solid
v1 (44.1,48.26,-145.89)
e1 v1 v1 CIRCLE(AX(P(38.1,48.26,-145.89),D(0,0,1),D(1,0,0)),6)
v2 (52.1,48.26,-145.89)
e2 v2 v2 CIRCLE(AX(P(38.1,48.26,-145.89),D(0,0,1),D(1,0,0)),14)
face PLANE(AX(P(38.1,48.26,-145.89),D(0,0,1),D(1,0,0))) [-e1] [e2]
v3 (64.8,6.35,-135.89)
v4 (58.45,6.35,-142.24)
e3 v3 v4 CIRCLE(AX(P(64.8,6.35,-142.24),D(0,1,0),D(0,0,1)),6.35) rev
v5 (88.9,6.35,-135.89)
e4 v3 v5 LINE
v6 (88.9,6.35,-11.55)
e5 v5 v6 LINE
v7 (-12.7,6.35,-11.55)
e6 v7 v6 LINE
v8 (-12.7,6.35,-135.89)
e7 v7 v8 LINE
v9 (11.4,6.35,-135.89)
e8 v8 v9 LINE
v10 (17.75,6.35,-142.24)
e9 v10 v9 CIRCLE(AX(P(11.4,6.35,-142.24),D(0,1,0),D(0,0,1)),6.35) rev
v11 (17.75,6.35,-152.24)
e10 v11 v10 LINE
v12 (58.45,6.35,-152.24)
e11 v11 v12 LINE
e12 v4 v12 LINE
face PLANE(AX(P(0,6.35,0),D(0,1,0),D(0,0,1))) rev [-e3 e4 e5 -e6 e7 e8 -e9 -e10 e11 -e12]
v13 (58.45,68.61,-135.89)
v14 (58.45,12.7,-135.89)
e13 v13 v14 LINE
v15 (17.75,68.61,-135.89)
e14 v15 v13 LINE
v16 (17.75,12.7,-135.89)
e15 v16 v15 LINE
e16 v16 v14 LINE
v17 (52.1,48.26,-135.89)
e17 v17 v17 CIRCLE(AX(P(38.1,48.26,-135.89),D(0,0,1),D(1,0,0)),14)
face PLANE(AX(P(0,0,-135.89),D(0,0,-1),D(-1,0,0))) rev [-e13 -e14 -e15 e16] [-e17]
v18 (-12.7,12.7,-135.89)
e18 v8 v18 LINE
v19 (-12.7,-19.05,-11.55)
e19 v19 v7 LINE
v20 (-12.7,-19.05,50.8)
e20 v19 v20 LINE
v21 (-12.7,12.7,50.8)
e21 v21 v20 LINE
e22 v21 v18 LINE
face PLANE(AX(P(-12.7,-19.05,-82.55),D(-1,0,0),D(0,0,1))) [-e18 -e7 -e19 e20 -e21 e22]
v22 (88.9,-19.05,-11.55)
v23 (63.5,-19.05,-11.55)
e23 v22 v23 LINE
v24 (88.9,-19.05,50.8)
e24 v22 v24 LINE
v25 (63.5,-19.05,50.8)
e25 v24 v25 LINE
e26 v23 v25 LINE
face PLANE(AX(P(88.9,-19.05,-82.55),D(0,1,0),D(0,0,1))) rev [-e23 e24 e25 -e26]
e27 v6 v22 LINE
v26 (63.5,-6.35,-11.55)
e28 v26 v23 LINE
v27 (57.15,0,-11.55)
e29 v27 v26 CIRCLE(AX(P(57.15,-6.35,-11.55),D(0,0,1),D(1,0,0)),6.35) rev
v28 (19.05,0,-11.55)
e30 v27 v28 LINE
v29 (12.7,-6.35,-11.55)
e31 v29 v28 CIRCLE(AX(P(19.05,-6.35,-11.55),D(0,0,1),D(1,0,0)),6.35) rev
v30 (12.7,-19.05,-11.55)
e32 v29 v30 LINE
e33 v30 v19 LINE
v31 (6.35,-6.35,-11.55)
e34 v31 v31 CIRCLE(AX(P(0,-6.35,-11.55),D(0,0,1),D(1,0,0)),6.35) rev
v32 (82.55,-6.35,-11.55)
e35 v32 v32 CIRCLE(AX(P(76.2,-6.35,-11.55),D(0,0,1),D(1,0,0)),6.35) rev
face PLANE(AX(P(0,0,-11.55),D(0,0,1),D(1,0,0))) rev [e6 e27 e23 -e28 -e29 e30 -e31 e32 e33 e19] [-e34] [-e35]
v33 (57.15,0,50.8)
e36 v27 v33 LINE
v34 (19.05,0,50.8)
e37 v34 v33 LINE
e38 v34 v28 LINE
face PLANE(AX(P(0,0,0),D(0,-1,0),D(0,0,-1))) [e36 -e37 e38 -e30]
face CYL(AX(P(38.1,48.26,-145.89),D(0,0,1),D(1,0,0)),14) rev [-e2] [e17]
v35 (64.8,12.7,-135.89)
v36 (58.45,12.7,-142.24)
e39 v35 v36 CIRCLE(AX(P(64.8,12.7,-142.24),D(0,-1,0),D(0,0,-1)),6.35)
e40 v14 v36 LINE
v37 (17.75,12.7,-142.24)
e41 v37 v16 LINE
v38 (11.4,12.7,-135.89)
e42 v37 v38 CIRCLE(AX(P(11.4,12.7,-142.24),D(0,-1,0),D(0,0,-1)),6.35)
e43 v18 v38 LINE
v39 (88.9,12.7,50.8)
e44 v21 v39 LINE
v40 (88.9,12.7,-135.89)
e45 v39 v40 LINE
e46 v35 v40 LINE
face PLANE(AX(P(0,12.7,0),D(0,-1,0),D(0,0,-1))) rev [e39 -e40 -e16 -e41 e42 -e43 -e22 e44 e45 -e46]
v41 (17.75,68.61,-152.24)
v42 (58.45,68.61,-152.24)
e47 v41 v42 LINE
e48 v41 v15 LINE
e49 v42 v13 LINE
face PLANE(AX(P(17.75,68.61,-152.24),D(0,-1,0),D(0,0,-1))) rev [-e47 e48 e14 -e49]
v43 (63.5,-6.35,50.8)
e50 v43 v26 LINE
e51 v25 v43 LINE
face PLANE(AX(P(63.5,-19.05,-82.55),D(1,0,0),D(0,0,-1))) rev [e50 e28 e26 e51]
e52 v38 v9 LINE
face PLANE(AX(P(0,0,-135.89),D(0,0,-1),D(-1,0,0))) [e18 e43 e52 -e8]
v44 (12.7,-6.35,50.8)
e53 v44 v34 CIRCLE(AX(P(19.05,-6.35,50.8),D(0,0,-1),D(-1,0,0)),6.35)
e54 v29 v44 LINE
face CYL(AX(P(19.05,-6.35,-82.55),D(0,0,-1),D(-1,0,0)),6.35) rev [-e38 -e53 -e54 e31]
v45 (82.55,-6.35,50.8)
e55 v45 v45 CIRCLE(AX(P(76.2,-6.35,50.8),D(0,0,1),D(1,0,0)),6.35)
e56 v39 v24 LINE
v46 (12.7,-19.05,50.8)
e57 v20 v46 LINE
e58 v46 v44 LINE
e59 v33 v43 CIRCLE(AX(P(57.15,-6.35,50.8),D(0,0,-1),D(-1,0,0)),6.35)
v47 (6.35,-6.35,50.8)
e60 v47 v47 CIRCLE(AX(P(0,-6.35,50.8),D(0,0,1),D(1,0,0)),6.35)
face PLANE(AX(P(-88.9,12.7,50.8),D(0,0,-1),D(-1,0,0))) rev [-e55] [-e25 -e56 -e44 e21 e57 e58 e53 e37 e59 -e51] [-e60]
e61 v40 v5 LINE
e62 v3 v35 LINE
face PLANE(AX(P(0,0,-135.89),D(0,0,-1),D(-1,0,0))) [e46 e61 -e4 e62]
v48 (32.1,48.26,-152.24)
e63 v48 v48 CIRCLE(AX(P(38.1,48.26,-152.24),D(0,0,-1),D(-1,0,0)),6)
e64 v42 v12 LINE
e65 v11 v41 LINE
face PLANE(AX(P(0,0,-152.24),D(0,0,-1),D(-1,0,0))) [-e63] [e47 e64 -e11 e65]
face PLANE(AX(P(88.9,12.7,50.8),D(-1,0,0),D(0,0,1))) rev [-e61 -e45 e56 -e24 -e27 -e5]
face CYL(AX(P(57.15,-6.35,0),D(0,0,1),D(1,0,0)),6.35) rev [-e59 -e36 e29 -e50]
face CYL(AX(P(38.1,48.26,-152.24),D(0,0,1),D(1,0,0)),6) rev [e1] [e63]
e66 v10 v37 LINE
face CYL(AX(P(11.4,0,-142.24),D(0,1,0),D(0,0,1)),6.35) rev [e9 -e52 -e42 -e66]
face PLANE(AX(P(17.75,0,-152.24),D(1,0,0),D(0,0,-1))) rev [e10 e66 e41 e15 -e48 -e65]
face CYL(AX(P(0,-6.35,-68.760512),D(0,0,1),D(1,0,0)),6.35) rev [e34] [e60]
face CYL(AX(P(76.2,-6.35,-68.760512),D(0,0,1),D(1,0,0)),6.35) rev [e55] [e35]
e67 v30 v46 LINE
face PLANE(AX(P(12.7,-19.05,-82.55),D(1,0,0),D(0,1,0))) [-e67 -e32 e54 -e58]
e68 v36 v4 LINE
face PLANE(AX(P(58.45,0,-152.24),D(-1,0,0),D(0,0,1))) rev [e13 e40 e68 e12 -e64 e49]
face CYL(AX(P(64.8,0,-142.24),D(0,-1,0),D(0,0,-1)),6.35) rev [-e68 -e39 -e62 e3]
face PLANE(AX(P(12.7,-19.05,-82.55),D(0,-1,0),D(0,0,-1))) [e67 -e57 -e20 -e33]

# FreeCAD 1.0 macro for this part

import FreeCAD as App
import Part
import Sketcher
from FreeCAD import Vector
Q = App.Units.Quantity


def edges_at(feature, points):
    """Names of the edges that pass closest to the given points."""
    edges = feature.Shape.Edges
    near = lambda p: min(range(len(edges)), key=lambda i: edges[i].distToShape(Part.Vertex(*p))[0])
    return sorted({f"Edge{near(p) + 1}" for p in points})


def add_polygon(sketch, points):
    """Adds a closed chain of lines whose ends are joined by coincident constraints."""
    first, n = sketch.GeometryCount, len(points)
    for a, b in zip(points, points[1:] + points[:1]):
        sketch.addGeometry(Part.LineSegment(App.Vector(*a, 0), App.Vector(*b, 0)), False)
    for i in range(n):
        sketch.addConstraint(Sketcher.Constraint("Coincident", first + i, 2, first + (i + 1) % n, 1))

doc = App.newDocument("Part")
params = doc.addObject("Spreadsheet::Sheet", "Params")
for row, (alias, value) in enumerate([
    ("sketch1_width", "7 in"),
    ("sketch1_height", "4 in"),
    ("pad1_length", "0.5 in"),
    ("sketch2_width", "1 in"),
    ("sketch2_height", "0.75 in"),
    ("pad2_length", "4 in"),
    ("sketch3_diameter", "0.5 in"),
    ("pocket1_length", "4 in"),
    ("sketch4_width", "1 in"),
    ("sketch4_height", "0.75 in"),
    ("pad3_length", "4 in"),
    ("sketch5_diameter", "0.5 in"),
    ("pocket2_length", "4 in"),
    ("sketch6_width", "3 in"),
    ("sketch6_height", "1.25 in"),
    ("pocket3_length", "4 in"),
    ("fillet_radius", "0.25 in"),
    ("sketch7_width", "4 in"),
    ("sketch7_height", "0.5 in"),
    ("pad4_length", "3.35 in"),
    ("pad5_length", "16.35 mm"),
    ("pocket4_length", "10 mm"),
    ("fillet2_radius", "0.25 in"),
    ("pocket5_length", "0.25 in"),
    ("fillet3_radius", "0.125 in"),
    ("sketch11_width", "4 in"),
    ("sketch11_height", "1 in"),
    ("pocket6_length", "0.125 in"),
    ("pocket6_length2", "39.25 mm"),
], start=1):
    params.set(f"A{row}", alias)
    params.set(f"B{row}", "=" + value)
    params.setAlias(f"B{row}", alias)

body = doc.addObject("PartDesign::Body", "Body")

sketch1 = body.newObject("Sketcher::SketchObject", "Sketch")
sketch1.AttachmentSupport = (doc.getObject("XZ_Plane"), [""])
sketch1.MapMode = "FlatFace"
add_polygon(sketch1, [(-89, -51), (-89, 51), (89, 51), (89, -51)])
sketch1.addConstraint(Sketcher.Constraint("Vertical", 0))
sketch1.addConstraint(Sketcher.Constraint("Horizontal", 1))
sketch1.addConstraint(Sketcher.Constraint("Vertical", 2))
sketch1.addConstraint(Sketcher.Constraint("Horizontal", 3))
sketch1.addConstraint(Sketcher.Constraint("Symmetric", 0, 2, 2, 2, -1, 1))
sketch1.addConstraint(Sketcher.Constraint("DistanceX", 1, 1, 1, 2, Q("7 in")))
sketch1.addConstraint(Sketcher.Constraint("DistanceY", 0, 1, 0, 2, Q("4 in")))
sketch1.setExpression("Constraints[9]", "Params.sketch1_width")
sketch1.setExpression("Constraints[10]", "Params.sketch1_height")
pad1 = body.newObject("PartDesign::Pad", "Pad")
pad1.Profile = sketch1
pad1.setExpression("Length", "Params.pad1_length")
pad1.Reversed = True

sketch2 = body.newObject("Sketcher::SketchObject", "Sketch001")
sketch2.AttachmentSupport = (doc.getObject("XY_Plane"), [""])
sketch2.MapMode = "FlatFace"
sketch2.AttachmentOffset = App.Placement(Vector(0, 0, 2 * 25.4), App.Rotation())
add_polygon(sketch2, [(-13, 0), (-13, -19), (13, -19), (13, 0)])
sketch2.addConstraint(Sketcher.Constraint("Vertical", 0))
sketch2.addConstraint(Sketcher.Constraint("Horizontal", 1))
sketch2.addConstraint(Sketcher.Constraint("Vertical", 2))
sketch2.addConstraint(Sketcher.Constraint("Horizontal", 3))
sketch2.addConstraint(Sketcher.Constraint("Symmetric", 2, 2, 3, 2, -1, 1))
sketch2.addConstraint(Sketcher.Constraint("DistanceX", 1, 1, 1, 2, Q("1 in")))
sketch2.addConstraint(Sketcher.Constraint("DistanceY", 0, 2, 0, 1, Q("0.75 in")))
sketch2.setExpression("Constraints[9]", "Params.sketch2_width")
sketch2.setExpression("Constraints[10]", "Params.sketch2_height")
pad2 = body.newObject("PartDesign::Pad", "Pad001")
pad2.Profile = sketch2
pad2.setExpression("Length", "Params.pad2_length")
pad2.Reversed = True

sketch3 = body.newObject("Sketcher::SketchObject", "Sketch002")
sketch3.AttachmentSupport = (doc.getObject("XY_Plane"), [""])
sketch3.MapMode = "FlatFace"
sketch3.AttachmentOffset = App.Placement(Vector(0, 0, 2 * 25.4), App.Rotation())
sketch3.addGeometry(Part.Circle(Vector(0, -6, 0), Vector(0, 0, 1), 6), False)
sketch3.addConstraint(Sketcher.Constraint("PointOnObject", 0, 3, -2))
sketch3.addConstraint(Sketcher.Constraint("Diameter", 0, Q("0.5 in")))
sketch3.addConstraint(Sketcher.Constraint("DistanceY", 0, 3, -1, 1, Q("0.25 in")))
sketch3.setExpression("Constraints[1]", "Params.sketch3_diameter")
pocket1 = body.newObject("PartDesign::Pocket", "Pocket")
pocket1.Profile = sketch3
pocket1.setExpression("Length", "Params.pocket1_length")

sketch4 = body.newObject("Sketcher::SketchObject", "Sketch003")
sketch4.AttachmentSupport = (doc.getObject("XY_Plane"), [""])
sketch4.MapMode = "FlatFace"
sketch4.AttachmentOffset = App.Placement(Vector(0, 0, 2 * 25.4), App.Rotation())
add_polygon(sketch4, [(-89, 0), (-89, -19), (-64, -19), (-64, 0)])
sketch4.addConstraint(Sketcher.Constraint("Vertical", 0))
sketch4.addConstraint(Sketcher.Constraint("Horizontal", 1))
sketch4.addConstraint(Sketcher.Constraint("Vertical", 2))
sketch4.addConstraint(Sketcher.Constraint("Horizontal", 3))
sketch4.addConstraint(Sketcher.Constraint("PointOnObject", 2, 2, -1))
sketch4.addConstraint(Sketcher.Constraint("DistanceX", 1, 1, 1, 2, Q("1 in")))
sketch4.addConstraint(Sketcher.Constraint("DistanceY", 0, 2, 0, 1, Q("0.75 in")))
sketch4.addConstraint(Sketcher.Constraint("DistanceX", 0, 2, -1, 1, Q("3.5 in")))
sketch4.setExpression("Constraints[9]", "Params.sketch4_width")
sketch4.setExpression("Constraints[10]", "Params.sketch4_height")
pad3 = body.newObject("PartDesign::Pad", "Pad002")
pad3.Profile = sketch4
pad3.setExpression("Length", "Params.pad3_length")
pad3.Reversed = True
doc.recompute()

mirrored = body.newObject("PartDesign::Mirrored", "Mirrored")
mirrored.Originals = [pad3]
mirrored.MirrorPlane = (doc.getObject("YZ_Plane"), [""])
body.Tip = mirrored

sketch5 = body.newObject("Sketcher::SketchObject", "Sketch004")
sketch5.AttachmentSupport = (doc.getObject("XY_Plane"), [""])
sketch5.MapMode = "FlatFace"
sketch5.AttachmentOffset = App.Placement(Vector(0, 0, 2 * 25.4), App.Rotation())
sketch5.addGeometry(Part.Circle(Vector(-76, -6, 0), Vector(0, 0, 1), 6), False)
sketch5.addGeometry(Part.Circle(Vector(76, -6, 0), Vector(0, 0, 1), 6), False)
sketch5.addConstraint(Sketcher.Constraint("Equal", 0, 1))
sketch5.addConstraint(Sketcher.Constraint("Symmetric", 0, 3, 1, 3, -2))
sketch5.addConstraint(Sketcher.Constraint("Diameter", 0, Q("0.5 in")))
sketch5.addConstraint(Sketcher.Constraint("DistanceX", 0, 3, -1, 1, Q("3 in")))
sketch5.addConstraint(Sketcher.Constraint("DistanceY", 0, 3, -1, 1, Q("0.25 in")))
sketch5.setExpression("Constraints[2]", "Params.sketch5_diameter")
pocket2 = body.newObject("PartDesign::Pocket", "Pocket001")
pocket2.Profile = sketch5
pocket2.setExpression("Length", "Params.pocket2_length")

sketch6 = body.newObject("Sketcher::SketchObject", "Sketch005")
sketch6.AttachmentSupport = (doc.getObject("XY_Plane"), [""])
sketch6.MapMode = "FlatFace"
sketch6.AttachmentOffset = App.Placement(Vector(0, 0, -2 * 25.4), App.Rotation())
add_polygon(sketch6, [(-13, 13), (-13, -19), (-89, -19), (-89, 13)])
sketch6.addConstraint(Sketcher.Constraint("Vertical", 0))
sketch6.addConstraint(Sketcher.Constraint("Horizontal", 1))
sketch6.addConstraint(Sketcher.Constraint("Vertical", 2))
sketch6.addConstraint(Sketcher.Constraint("Horizontal", 3))
sketch6.addConstraint(Sketcher.Constraint("DistanceX", 1, 2, 1, 1, Q("3 in")))
sketch6.addConstraint(Sketcher.Constraint("DistanceY", 0, 2, 0, 1, Q("1.25 in")))
sketch6.addConstraint(Sketcher.Constraint("DistanceX", 0, 2, -1, 1, Q("0.5 in")))
sketch6.addConstraint(Sketcher.Constraint("DistanceY", -1, 1, 2, 2, Q("0.5 in")))
sketch6.setExpression("Constraints[8]", "Params.sketch6_width")
sketch6.setExpression("Constraints[9]", "Params.sketch6_height")
pocket3 = body.newObject("PartDesign::Pocket", "Pocket002")
pocket3.Profile = sketch6
pocket3.setExpression("Length", "Params.pocket3_length")
pocket3.Reversed = True
doc.recompute()

fillet = body.newObject("PartDesign::Fillet", "Fillet")
fillet.Base = (pocket3, edges_at(pocket3, [(12.7, 0, 0), (63.5, 0, 0)]))
fillet.setExpression("Radius", "Params.fillet_radius")

sketch7 = body.newObject("Sketcher::SketchObject", "Sketch006")
sketch7.AttachmentSupport = (doc.getObject("XY_Plane"), [""])
sketch7.MapMode = "FlatFace"
sketch7.AttachmentOffset = App.Placement(Vector(0, 0, -2 * 25.4), App.Rotation())
add_polygon(sketch7, [(89, 13), (89, 0), (-13, 0), (-13, 13)])
sketch7.addConstraint(Sketcher.Constraint("Vertical", 0))
sketch7.addConstraint(Sketcher.Constraint("Horizontal", 1))
sketch7.addConstraint(Sketcher.Constraint("Vertical", 2))
sketch7.addConstraint(Sketcher.Constraint("Horizontal", 3))
sketch7.addConstraint(Sketcher.Constraint("PointOnObject", 0, 2, -1))
sketch7.addConstraint(Sketcher.Constraint("DistanceX", 1, 2, 1, 1, Q("4 in")))
sketch7.addConstraint(Sketcher.Constraint("DistanceY", 0, 2, 0, 1, Q("0.5 in")))
sketch7.addConstraint(Sketcher.Constraint("DistanceX", -1, 1, 0, 2, Q("3.5 in")))
sketch7.setExpression("Constraints[9]", "Params.sketch7_width")
sketch7.setExpression("Constraints[10]", "Params.sketch7_height")
pad4 = body.newObject("PartDesign::Pad", "Pad003")
pad4.Profile = sketch7
pad4.setExpression("Length", "Params.pad4_length")
pad4.Reversed = True

sketch8 = body.newObject("Sketcher::SketchObject", "Sketch007")
sketch8.AttachmentSupport = (doc.getObject("XY_Plane"), [""])
sketch8.MapMode = "FlatFace"
sketch8.AttachmentOffset = App.Placement(Vector(0, 0, -5.35 * 25.4), App.Rotation())
add_polygon(sketch8, [(58, 69), (58, 0), (18, 0), (18, 69)])
sketch8.addGeometry(Part.Circle(Vector(38, 48, 0), Vector(0, 0, 1), 6), False)
sketch8.addConstraint(Sketcher.Constraint("Vertical", 0))
sketch8.addConstraint(Sketcher.Constraint("Horizontal", 1))
sketch8.addConstraint(Sketcher.Constraint("Vertical", 2))
sketch8.addConstraint(Sketcher.Constraint("Horizontal", 3))
sketch8.addConstraint(Sketcher.Constraint("PointOnObject", 0, 2, -1))
sketch8.addConstraint(Sketcher.Constraint("DistanceX", -1, 1, 4, 3, Q("1.5 in")))
sketch8.addConstraint(Sketcher.Constraint("DistanceY", -1, 1, 4, 3, Q("1.9 in")))
sketch8.addConstraint(Sketcher.Constraint("Diameter", 4, Q("12 mm")))
sketch8.addConstraint(Sketcher.Constraint("DistanceX", 1, 2, 1, 1, Q("40.7 mm")))
sketch8.addConstraint(Sketcher.Constraint("DistanceY", 0, 2, 0, 1, Q("68.61 mm")))
sketch8.addConstraint(Sketcher.Constraint("DistanceX", -1, 1, 0, 2, Q("58.45 mm")))
pad5 = body.newObject("PartDesign::Pad", "Pad004")
pad5.Profile = sketch8
pad5.setExpression("Length", "Params.pad5_length")
pad5.Reversed = True

sketch9 = body.newObject("Sketcher::SketchObject", "Sketch008")
sketch9.AttachmentSupport = (doc.getObject("XY_Plane"), [""])
sketch9.MapMode = "FlatFace"
sketch9.AttachmentOffset = App.Placement(Vector(0, 0, -5.35 * 25.4), App.Rotation())
sketch9.addGeometry(Part.Circle(Vector(38, 48, 0), Vector(0, 0, 1), 14), False)
sketch9.addConstraint(Sketcher.Constraint("DistanceX", -1, 1, 0, 3, Q("1.5 in")))
sketch9.addConstraint(Sketcher.Constraint("DistanceY", -1, 1, 0, 3, Q("1.9 in")))
sketch9.addConstraint(Sketcher.Constraint("Diameter", 0, Q("28 mm")))
pocket4 = body.newObject("PartDesign::Pocket", "Pocket003")
pocket4.Profile = sketch9
pocket4.setExpression("Length", "Params.pocket4_length")
doc.recompute()

fillet2 = body.newObject("PartDesign::Fillet", "Fillet001")
fillet2.Base = (pocket4, edges_at(pocket4, [(58.45, 6.35, -135.89), (17.75, 6.35, -135.89)]))
fillet2.setExpression("Radius", "Params.fillet2_radius")

sketch10 = body.newObject("Sketcher::SketchObject", "Sketch009")
sketch10.AttachmentSupport = (doc.getObject("XZ_Plane"), [""])
sketch10.MapMode = "FlatFace"
add_polygon(sketch10, [(-17, -51), (-17, -160), (89, -160), (89, -51)])
sketch10.addConstraint(Sketcher.Constraint("Vertical", 0))
sketch10.addConstraint(Sketcher.Constraint("Horizontal", 1))
sketch10.addConstraint(Sketcher.Constraint("Vertical", 2))
sketch10.addConstraint(Sketcher.Constraint("Horizontal", 3))
sketch10.addConstraint(Sketcher.Constraint("DistanceY", 2, 2, -1, 1, Q("2 in")))
sketch10.addConstraint(Sketcher.Constraint("DistanceX", -1, 1, 1, 2, Q("3.5 in")))
sketch10.addConstraint(Sketcher.Constraint("DistanceX", 1, 1, 1, 2, Q("105.926535 mm")))
sketch10.addConstraint(Sketcher.Constraint("DistanceY", 0, 2, 0, 1, Q("109.219193 mm")))
pocket5 = body.newObject("PartDesign::Pocket", "Pocket004")
pocket5.Profile = sketch10
pocket5.setExpression("Length", "Params.pocket5_length")
doc.recompute()

fillet3 = body.newObject("PartDesign::Fillet", "Fillet002")
fillet3.Base = (pocket5, edges_at(pocket5, [(38.1, 6.35, -50.8)]))
fillet3.setExpression("Radius", "Params.fillet3_radius")

sketch11 = body.newObject("Sketcher::SketchObject", "Sketch010")
sketch11.AttachmentSupport = (doc.getObject("XY_Plane"), [""])
sketch11.MapMode = "FlatFace"
sketch11.AttachmentOffset = App.Placement(Vector(0, 0, -2 * 25.4), App.Rotation())
add_polygon(sketch11, [(89, 6), (89, -19), (-13, -19), (-13, 6)])
sketch11.addConstraint(Sketcher.Constraint("Vertical", 0))
sketch11.addConstraint(Sketcher.Constraint("Horizontal", 1))
sketch11.addConstraint(Sketcher.Constraint("Vertical", 2))
sketch11.addConstraint(Sketcher.Constraint("Horizontal", 3))
sketch11.addConstraint(Sketcher.Constraint("DistanceX", 1, 2, 1, 1, Q("4 in")))
sketch11.addConstraint(Sketcher.Constraint("DistanceY", 0, 2, 0, 1, Q("1 in")))
sketch11.addConstraint(Sketcher.Constraint("DistanceX", -1, 1, 0, 2, Q("3.5 in")))
sketch11.addConstraint(Sketcher.Constraint("DistanceY", 0, 2, -1, 1, Q("0.75 in")))
sketch11.setExpression("Constraints[8]", "Params.sketch11_width")
sketch11.setExpression("Constraints[9]", "Params.sketch11_height")
pocket6 = body.newObject("PartDesign::Pocket", "Pocket005")
pocket6.Profile = sketch11
pocket6.Type = "TwoLengths"
pocket6.setExpression("Length", "Params.pocket6_length")
pocket6.setExpression("Length2", "Params.pocket6_length2")

doc.recompute()
